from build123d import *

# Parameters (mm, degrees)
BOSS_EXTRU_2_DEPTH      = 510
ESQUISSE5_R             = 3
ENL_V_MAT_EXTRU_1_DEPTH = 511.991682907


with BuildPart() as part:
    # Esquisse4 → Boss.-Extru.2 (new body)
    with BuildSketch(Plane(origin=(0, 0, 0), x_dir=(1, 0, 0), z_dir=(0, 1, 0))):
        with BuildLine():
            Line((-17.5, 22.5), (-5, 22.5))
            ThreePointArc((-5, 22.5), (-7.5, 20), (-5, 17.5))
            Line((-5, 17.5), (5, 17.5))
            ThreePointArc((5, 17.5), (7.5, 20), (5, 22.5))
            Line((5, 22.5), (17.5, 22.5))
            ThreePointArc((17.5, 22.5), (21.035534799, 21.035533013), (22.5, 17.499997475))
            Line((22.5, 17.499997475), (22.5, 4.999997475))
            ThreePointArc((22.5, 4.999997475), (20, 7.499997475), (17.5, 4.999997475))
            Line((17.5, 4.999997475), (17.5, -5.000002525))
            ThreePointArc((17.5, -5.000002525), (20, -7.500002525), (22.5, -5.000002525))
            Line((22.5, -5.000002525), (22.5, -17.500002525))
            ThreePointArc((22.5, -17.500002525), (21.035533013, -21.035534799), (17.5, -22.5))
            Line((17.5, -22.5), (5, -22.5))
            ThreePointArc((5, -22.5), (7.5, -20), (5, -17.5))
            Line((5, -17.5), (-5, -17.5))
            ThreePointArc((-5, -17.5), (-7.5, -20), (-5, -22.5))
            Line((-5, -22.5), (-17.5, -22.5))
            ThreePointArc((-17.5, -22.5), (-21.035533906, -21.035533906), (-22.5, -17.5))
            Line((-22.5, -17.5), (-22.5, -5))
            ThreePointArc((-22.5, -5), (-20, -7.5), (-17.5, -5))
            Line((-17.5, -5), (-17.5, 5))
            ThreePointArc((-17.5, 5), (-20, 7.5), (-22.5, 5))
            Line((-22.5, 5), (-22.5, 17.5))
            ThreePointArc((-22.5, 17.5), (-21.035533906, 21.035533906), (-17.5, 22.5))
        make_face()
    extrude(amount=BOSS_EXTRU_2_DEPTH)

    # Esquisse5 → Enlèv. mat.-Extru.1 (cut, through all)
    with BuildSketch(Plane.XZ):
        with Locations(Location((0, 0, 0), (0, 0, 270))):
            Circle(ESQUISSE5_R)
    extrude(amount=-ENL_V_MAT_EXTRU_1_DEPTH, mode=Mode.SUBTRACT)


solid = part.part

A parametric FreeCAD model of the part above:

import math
import FreeCAD as App
import Part
import Sketcher
from FreeCAD import Vector
Q = App.Units.Quantity

doc = App.newDocument("Part")
body = doc.addObject("PartDesign::Body", "Body")

# Sketch on XZ plane
sketch1 = body.newObject("Sketcher::SketchObject", "Sketch")
sketch1.AttachmentSupport = (doc.getObject("XZ_Plane"), [""])
sketch1.MapMode = "FlatFace"
sketch1.addGeometry(Part.LineSegment(Vector(-5, -22.5, 0), Vector(-17.5, -22.5, 0)), False)
sketch1.addGeometry(Part.ArcOfCircle(Part.Circle(Vector(-17.5, -17.5, 0), Vector(0, 0, 1), 5), math.radians(180), math.radians(270)), False)
sketch1.addGeometry(Part.LineSegment(Vector(-22.5, -17.5, 0), Vector(-22.5, -5, 0)), False)
sketch1.addGeometry(Part.ArcOfCircle(Part.Circle(Vector(-20, -5, 0), Vector(0, 0, 1), 2.5), math.radians(180), math.radians(360)), False)
sketch1.addGeometry(Part.LineSegment(Vector(-17.5, -5, 0), Vector(-17.5, 5, 0)), False)
sketch1.addGeometry(Part.ArcOfCircle(Part.Circle(Vector(-20, 5, 0), Vector(0, 0, 1), 2.5), math.radians(0), math.radians(180)), False)
sketch1.addGeometry(Part.LineSegment(Vector(-22.5, 5, 0), Vector(-22.5, 17.5, 0)), False)
sketch1.addGeometry(Part.ArcOfCircle(Part.Circle(Vector(-17.5, 17.5, 0), Vector(0, 0, 1), 5), math.radians(90), math.radians(180)), False)
sketch1.addGeometry(Part.LineSegment(Vector(-17.5, 22.5, 0), Vector(-5, 22.5, 0)), False)
sketch1.addGeometry(Part.ArcOfCircle(Part.Circle(Vector(-5, 20, 0), Vector(0, 0, 1), 2.5), math.radians(90), math.radians(270)), False)
sketch1.addGeometry(Part.LineSegment(Vector(-5, 17.5, 0), Vector(5, 17.5, 0)), False)
sketch1.addGeometry(Part.ArcOfCircle(Part.Circle(Vector(5, 20, 0), Vector(0, 0, 1), 2.5), math.radians(-90), math.radians(90)), False)
sketch1.addGeometry(Part.LineSegment(Vector(5, 22.5, 0), Vector(17.5, 22.5, 0)), False)
sketch1.addGeometry(Part.ArcOfCircle(Part.Circle(Vector(17.5, 17.5, 0), Vector(0, 0, 1), 5), math.radians(0.000029), math.radians(90)), False)
sketch1.addGeometry(Part.LineSegment(Vector(22.5, 17.500003, 0), Vector(22.5, 5.000003, 0)), False)
sketch1.addGeometry(Part.ArcOfCircle(Part.Circle(Vector(20, 5.000003, 0), Vector(0, 0, 1), 2.5), math.radians(0), math.radians(180)), False)
sketch1.addGeometry(Part.LineSegment(Vector(17.5, 5.000003, 0), Vector(17.5, -4.999997, 0)), False)
sketch1.addGeometry(Part.ArcOfCircle(Part.Circle(Vector(20, -4.999997, 0), Vector(0, 0, 1), 2.5), math.radians(180), math.radians(360)), False)
sketch1.addGeometry(Part.LineSegment(Vector(22.5, -4.999997, 0), Vector(22.5, -17.499997, 0)), False)
sketch1.addGeometry(Part.ArcOfCircle(Part.Circle(Vector(17.5, -17.5, 0), Vector(0, 0, 1), 5), math.radians(-90), math.radians(0.000029)), False)
sketch1.addGeometry(Part.LineSegment(Vector(17.5, -22.5, 0), Vector(5, -22.5, 0)), False)
sketch1.addGeometry(Part.ArcOfCircle(Part.Circle(Vector(5, -20, 0), Vector(0, 0, 1), 2.5), math.radians(-90), math.radians(90)), False)
sketch1.addGeometry(Part.LineSegment(Vector(5, -17.5, 0), Vector(-5, -17.5, 0)), False)
sketch1.addGeometry(Part.ArcOfCircle(Part.Circle(Vector(-5, -20, 0), Vector(0, 0, 1), 2.5), math.radians(90), math.radians(270)), False)
sketch1.addConstraint(Sketcher.Constraint("Tangent", 0, 2, 1, 2))
sketch1.addConstraint(Sketcher.Constraint("Tangent", 1, 1, 2, 1))
sketch1.addConstraint(Sketcher.Constraint("Tangent", 2, 2, 3, 1))
sketch1.addConstraint(Sketcher.Constraint("Tangent", 3, 2, 4, 1))
sketch1.addConstraint(Sketcher.Constraint("Tangent", 4, 2, 5, 1))
sketch1.addConstraint(Sketcher.Constraint("Tangent", 5, 2, 6, 1))
sketch1.addConstraint(Sketcher.Constraint("Tangent", 6, 2, 7, 2))
sketch1.addConstraint(Sketcher.Constraint("Tangent", 7, 1, 8, 1))
sketch1.addConstraint(Sketcher.Constraint("Tangent", 8, 2, 9, 1))
sketch1.addConstraint(Sketcher.Constraint("Tangent", 9, 2, 10, 1))
sketch1.addConstraint(Sketcher.Constraint("Tangent", 10, 2, 11, 1))
sketch1.addConstraint(Sketcher.Constraint("Tangent", 11, 2, 12, 1))
sketch1.addConstraint(Sketcher.Constraint("Tangent", 12, 2, 13, 2))
sketch1.addConstraint(Sketcher.Constraint("Tangent", 13, 1, 14, 1))
sketch1.addConstraint(Sketcher.Constraint("Tangent", 14, 2, 15, 1))
sketch1.addConstraint(Sketcher.Constraint("Tangent", 15, 2, 16, 1))
sketch1.addConstraint(Sketcher.Constraint("Tangent", 16, 2, 17, 1))
sketch1.addConstraint(Sketcher.Constraint("Tangent", 17, 2, 18, 1))
sketch1.addConstraint(Sketcher.Constraint("Tangent", 18, 2, 19, 2))
sketch1.addConstraint(Sketcher.Constraint("Tangent", 19, 1, 20, 1))
sketch1.addConstraint(Sketcher.Constraint("Tangent", 20, 2, 21, 1))
sketch1.addConstraint(Sketcher.Constraint("Tangent", 21, 2, 22, 1))
sketch1.addConstraint(Sketcher.Constraint("Tangent", 22, 2, 23, 1))
sketch1.addConstraint(Sketcher.Constraint("Tangent", 23, 2, 0, 1))
sketch1.addConstraint(Sketcher.Constraint("Horizontal", 0))
sketch1.addConstraint(Sketcher.Constraint("Vertical", 2))
sketch1.addConstraint(Sketcher.Constraint("Vertical", 4))
sketch1.addConstraint(Sketcher.Constraint("Vertical", 6))
sketch1.addConstraint(Sketcher.Constraint("Horizontal", 8))
sketch1.addConstraint(Sketcher.Constraint("Horizontal", 10))
sketch1.addConstraint(Sketcher.Constraint("Horizontal", 12))
sketch1.addConstraint(Sketcher.Constraint("Vertical", 14))
sketch1.addConstraint(Sketcher.Constraint("Vertical", 16))
sketch1.addConstraint(Sketcher.Constraint("Vertical", 18))
sketch1.addConstraint(Sketcher.Constraint("Horizontal", 20))
sketch1.addConstraint(Sketcher.Constraint("Horizontal", 22))
sketch1.addConstraint(Sketcher.Constraint("Equal", 3, 5))
sketch1.addConstraint(Sketcher.Constraint("Equal", 1, 7))
sketch1.addConstraint(Sketcher.Constraint("Equal", 5, 9))
sketch1.addConstraint(Sketcher.Constraint("Equal", 9, 11))
sketch1.addConstraint(Sketcher.Constraint("Equal", 7, 13))
sketch1.addConstraint(Sketcher.Constraint("Equal", 11, 15))
sketch1.addConstraint(Sketcher.Constraint("Equal", 15, 17))
sketch1.addConstraint(Sketcher.Constraint("Equal", 13, 19))
sketch1.addConstraint(Sketcher.Constraint("Equal", 17, 21))
sketch1.addConstraint(Sketcher.Constraint("Equal", 21, 23))
sketch1.addConstraint(Sketcher.Constraint("Symmetric", 1, 3, 13, 3, -1, 1))
sketch1.addConstraint(Sketcher.Constraint("Horizontal", 6, 2, 9, 2))
sketch1.addConstraint(Sketcher.Constraint("Vertical", 11, 3, 21, 3))
sketch1.addConstraint(Sketcher.Constraint("Vertical", 9, 3, 23, 3))
sketch1.addConstraint(Sketcher.Constraint("Equal", 8, 12))
sketch1.addConstraint(Sketcher.Constraint("Equal", 20, 2))
sketch1.addConstraint(Sketcher.Constraint("Equal", 22, 4))
sketch1.addConstraint(Sketcher.Constraint("Equal", 2, 6))
sketch1.addConstraint(Sketcher.Constraint("Equal", 6, 14))
sketch1.addConstraint(Sketcher.Constraint("Equal", 4, 16))
sketch1.addConstraint(Sketcher.Constraint("Radius", 1, Q("5 mm")))
sketch1.addConstraint(Sketcher.Constraint("DistanceX", 10, 1, 10, 2, Q("10 mm")))
sketch1.addConstraint(Sketcher.Constraint("DistanceX", 0, 2, 0, 1, Q("12.5 mm")))
pad1 = body.newObject("PartDesign::Pad", "Pad")
pad1.Profile = sketch1
pad1.Length = 510
pad1.Reversed = True

# Sketch on XZ plane
sketch2 = body.newObject("Sketcher::SketchObject", "Sketch001")
sketch2.AttachmentSupport = (doc.getObject("XZ_Plane"), [""])
sketch2.MapMode = "FlatFace"
sketch2.addGeometry(Part.Circle(Vector(0, 0, 0), Vector(0, 0, 1), 3), False)
sketch2.addConstraint(Sketcher.Constraint("Coincident", 0, 3, -1, 1))
sketch2.addConstraint(Sketcher.Constraint("Diameter", 0, Q("6 mm")))
pocket1 = body.newObject("PartDesign::Pocket", "Pocket")
pocket1.Profile = sketch2
pocket1.Type = "ThroughAll"

doc.recompute()
